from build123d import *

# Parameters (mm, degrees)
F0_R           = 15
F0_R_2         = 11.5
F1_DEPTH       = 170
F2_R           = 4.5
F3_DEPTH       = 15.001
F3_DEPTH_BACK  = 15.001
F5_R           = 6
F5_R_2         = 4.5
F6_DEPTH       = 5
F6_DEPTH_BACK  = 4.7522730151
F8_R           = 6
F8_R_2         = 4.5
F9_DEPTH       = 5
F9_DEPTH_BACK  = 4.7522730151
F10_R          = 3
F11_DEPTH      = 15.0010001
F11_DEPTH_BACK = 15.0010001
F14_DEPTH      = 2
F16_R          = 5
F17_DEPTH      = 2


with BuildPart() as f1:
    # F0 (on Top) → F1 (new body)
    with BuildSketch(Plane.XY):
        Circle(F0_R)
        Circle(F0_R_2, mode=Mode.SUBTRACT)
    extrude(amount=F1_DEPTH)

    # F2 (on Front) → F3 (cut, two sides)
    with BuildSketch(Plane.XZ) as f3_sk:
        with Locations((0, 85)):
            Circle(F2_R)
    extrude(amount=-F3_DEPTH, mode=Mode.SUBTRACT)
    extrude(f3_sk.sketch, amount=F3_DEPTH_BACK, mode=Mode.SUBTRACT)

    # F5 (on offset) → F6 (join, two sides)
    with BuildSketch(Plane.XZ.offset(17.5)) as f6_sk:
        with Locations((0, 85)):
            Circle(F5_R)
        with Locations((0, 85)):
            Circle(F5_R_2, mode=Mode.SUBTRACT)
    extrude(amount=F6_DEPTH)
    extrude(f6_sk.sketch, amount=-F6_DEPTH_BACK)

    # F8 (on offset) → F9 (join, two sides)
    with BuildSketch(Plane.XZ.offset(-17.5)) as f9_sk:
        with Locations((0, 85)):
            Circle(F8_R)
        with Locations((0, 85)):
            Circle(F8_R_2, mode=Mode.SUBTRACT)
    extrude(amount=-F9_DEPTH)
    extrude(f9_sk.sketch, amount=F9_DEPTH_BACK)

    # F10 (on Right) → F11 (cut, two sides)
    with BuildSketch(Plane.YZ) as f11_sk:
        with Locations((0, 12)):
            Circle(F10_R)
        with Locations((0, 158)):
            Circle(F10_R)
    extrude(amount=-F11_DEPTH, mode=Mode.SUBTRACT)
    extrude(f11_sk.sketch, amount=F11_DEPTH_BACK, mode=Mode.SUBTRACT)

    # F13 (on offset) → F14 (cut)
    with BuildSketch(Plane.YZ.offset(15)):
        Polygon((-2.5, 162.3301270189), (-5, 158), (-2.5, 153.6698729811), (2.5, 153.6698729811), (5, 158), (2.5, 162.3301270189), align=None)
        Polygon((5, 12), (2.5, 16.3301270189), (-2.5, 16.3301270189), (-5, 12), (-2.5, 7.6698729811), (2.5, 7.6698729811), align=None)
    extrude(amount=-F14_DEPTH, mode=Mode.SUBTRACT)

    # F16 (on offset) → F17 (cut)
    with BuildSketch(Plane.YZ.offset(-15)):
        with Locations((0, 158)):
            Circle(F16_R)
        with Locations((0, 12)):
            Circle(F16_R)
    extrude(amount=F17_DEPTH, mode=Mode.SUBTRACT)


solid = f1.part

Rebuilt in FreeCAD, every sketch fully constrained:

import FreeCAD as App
import Part
import Sketcher
from FreeCAD import Vector
Q = App.Units.Quantity

doc = App.newDocument("Part")
body = doc.addObject("PartDesign::Body", "Body")

# Sketch on XY plane
sketch1 = body.newObject("Sketcher::SketchObject", "Sketch")
sketch1.AttachmentSupport = (doc.getObject("XY_Plane"), [""])
sketch1.MapMode = "FlatFace"
sketch1.addGeometry(Part.Circle(Vector(0, 0, 0), Vector(0, 0, 1), 15), False)
sketch1.addGeometry(Part.Circle(Vector(0, 0, 0), Vector(0, 0, 1), 11.5), False)
sketch1.addConstraint(Sketcher.Constraint("Coincident", 0, 3, -1, 1))
sketch1.addConstraint(Sketcher.Constraint("Coincident", 1, 3, -1, 1))
sketch1.addConstraint(Sketcher.Constraint("Diameter", 0, 30.0))
sketch1.addConstraint(Sketcher.Constraint("Diameter", 1, 23.0))
pad1 = body.newObject("PartDesign::Pad", "Pad")
pad1.Profile = sketch1
pad1.Length = 170

# Sketch on XZ plane
sketch2 = body.newObject("Sketcher::SketchObject", "Sketch001")
sketch2.AttachmentSupport = (doc.getObject("XZ_Plane"), [""])
sketch2.MapMode = "FlatFace"
sketch2.addGeometry(Part.Circle(Vector(0, 85, 0), Vector(0, 0, 1), 4.5), False)
sketch2.addConstraint(Sketcher.Constraint("PointOnObject", 0, 3, -2))
sketch2.addConstraint(Sketcher.Constraint("Diameter", 0, 9.0))
sketch2.addConstraint(Sketcher.Constraint("DistanceY", -1, 1, 0, 3, 85.0))
pocket1 = body.newObject("PartDesign::Pocket", "Pocket")
pocket1.Profile = sketch2
pocket1.Type = "ThroughAll"
pocket1.Midplane = True

# Sketch on XZ plane
sketch3 = body.newObject("Sketcher::SketchObject", "Sketch002")
sketch3.AttachmentSupport = (doc.getObject("XZ_Plane"), [""])
sketch3.MapMode = "FlatFace"
sketch3.AttachmentOffset = App.Placement(Vector(0, 0, 17.5), App.Rotation())
sketch3.addGeometry(Part.Circle(Vector(0, 85, 0), Vector(0, 0, 1), 6), False)
sketch3.addGeometry(Part.Circle(Vector(0, 85, 0), Vector(0, 0, 1), 4.5), False)
sketch3.addConstraint(Sketcher.Constraint("Coincident", 1, 3, 0, 3))
sketch3.addConstraint(Sketcher.Constraint("PointOnObject", 0, 3, -2))
sketch3.addConstraint(Sketcher.Constraint("Diameter", 0, 12.0))
sketch3.addConstraint(Sketcher.Constraint("Diameter", 1, 9.0))
sketch3.addConstraint(Sketcher.Constraint("DistanceY", -1, 1, 0, 3, 85.0))
pad2 = body.newObject("PartDesign::Pad", "Pad001")
pad2.Profile = sketch3
pad2.Type = "TwoLengths"
pad2.Length = 5
pad2.Length2 = 4.752273

# Sketch on XZ plane
sketch4 = body.newObject("Sketcher::SketchObject", "Sketch003")
sketch4.AttachmentSupport = (doc.getObject("XZ_Plane"), [""])
sketch4.MapMode = "FlatFace"
sketch4.AttachmentOffset = App.Placement(Vector(0, 0, -17.5), App.Rotation())
sketch4.addGeometry(Part.Circle(Vector(0, 85, 0), Vector(0, 0, 1), 6), False)
sketch4.addGeometry(Part.Circle(Vector(0, 85, 0), Vector(0, 0, 1), 4.5), False)
sketch4.addConstraint(Sketcher.Constraint("Coincident", 1, 3, 0, 3))
sketch4.addConstraint(Sketcher.Constraint("PointOnObject", 0, 3, -2))
sketch4.addConstraint(Sketcher.Constraint("Diameter", 0, 12.0))
sketch4.addConstraint(Sketcher.Constraint("Diameter", 1, 9.0))
sketch4.addConstraint(Sketcher.Constraint("DistanceY", -1, 1, 0, 3, 85.0))
pad3 = body.newObject("PartDesign::Pad", "Pad002")
pad3.Profile = sketch4
pad3.Type = "TwoLengths"
pad3.Length = 5
pad3.Length2 = 4.752273
pad3.Reversed = True

# Sketch on YZ plane
sketch5 = body.newObject("Sketcher::SketchObject", "Sketch004")
sketch5.AttachmentSupport = (doc.getObject("YZ_Plane"), [""])
sketch5.MapMode = "FlatFace"
sketch5.addGeometry(Part.Circle(Vector(0, 12, 0), Vector(0, 0, 1), 3), False)
sketch5.addGeometry(Part.Circle(Vector(0, 158, 0), Vector(0, 0, 1), 3), False)
sketch5.addConstraint(Sketcher.Constraint("Equal", 0, 1))
sketch5.addConstraint(Sketcher.Constraint("PointOnObject", 0, 3, -2))
sketch5.addConstraint(Sketcher.Constraint("PointOnObject", 1, 3, -2))
sketch5.addConstraint(Sketcher.Constraint("Diameter", 0, 6.0))
sketch5.addConstraint(Sketcher.Constraint("DistanceY", -1, 1, 0, 3, 12.0))
sketch5.addConstraint(Sketcher.Constraint("DistanceY", -1, 1, 1, 3, 158.0))
pocket2 = body.newObject("PartDesign::Pocket", "Pocket001")
pocket2.Profile = sketch5
pocket2.Type = "ThroughAll"
pocket2.Midplane = True

# Sketch on YZ plane
sketch6 = body.newObject("Sketcher::SketchObject", "Sketch005")
sketch6.AttachmentSupport = (doc.getObject("YZ_Plane"), [""])
sketch6.MapMode = "FlatFace"
sketch6.AttachmentOffset = App.Placement(Vector(0, 0, 15), App.Rotation())
sketch6.addGeometry(Part.LineSegment(Vector(-2.5, 162.330127, 0), Vector(-5, 158, 0)), False)
sketch6.addGeometry(Part.LineSegment(Vector(-5, 158, 0), Vector(-2.5, 153.669873, 0)), False)
sketch6.addGeometry(Part.LineSegment(Vector(-2.5, 153.669873, 0), Vector(2.5, 153.669873, 0)), False)
sketch6.addGeometry(Part.LineSegment(Vector(2.5, 153.669873, 0), Vector(5, 158, 0)), False)
sketch6.addGeometry(Part.LineSegment(Vector(5, 158, 0), Vector(2.5, 162.330127, 0)), False)
sketch6.addGeometry(Part.LineSegment(Vector(2.5, 162.330127, 0), Vector(-2.5, 162.330127, 0)), False)
sketch6.addGeometry(Part.LineSegment(Vector(5, 12, 0), Vector(2.5, 16.330127, 0)), False)
sketch6.addGeometry(Part.LineSegment(Vector(2.5, 16.330127, 0), Vector(-2.5, 16.330127, 0)), False)
sketch6.addGeometry(Part.LineSegment(Vector(-2.5, 16.330127, 0), Vector(-5, 12, 0)), False)
sketch6.addGeometry(Part.LineSegment(Vector(-5, 12, 0), Vector(-2.5, 7.669873, 0)), False)
sketch6.addGeometry(Part.LineSegment(Vector(-2.5, 7.669873, 0), Vector(2.5, 7.669873, 0)), False)
sketch6.addGeometry(Part.LineSegment(Vector(2.5, 7.669873, 0), Vector(5, 12, 0)), False)
sketch6.addConstraint(Sketcher.Constraint("Coincident", 0, 2, 1, 1))
sketch6.addConstraint(Sketcher.Constraint("Coincident", 1, 2, 2, 1))
sketch6.addConstraint(Sketcher.Constraint("Coincident", 2, 2, 3, 1))
sketch6.addConstraint(Sketcher.Constraint("Coincident", 3, 2, 4, 1))
sketch6.addConstraint(Sketcher.Constraint("Coincident", 4, 2, 5, 1))
sketch6.addConstraint(Sketcher.Constraint("Coincident", 5, 2, 0, 1))
sketch6.addConstraint(Sketcher.Constraint("Coincident", 6, 2, 7, 1))
sketch6.addConstraint(Sketcher.Constraint("Coincident", 7, 2, 8, 1))
sketch6.addConstraint(Sketcher.Constraint("Coincident", 8, 2, 9, 1))
sketch6.addConstraint(Sketcher.Constraint("Coincident", 9, 2, 10, 1))
sketch6.addConstraint(Sketcher.Constraint("Coincident", 10, 2, 11, 1))
sketch6.addConstraint(Sketcher.Constraint("Coincident", 11, 2, 6, 1))
sketch6.addConstraint(Sketcher.Constraint("Horizontal", 2))
sketch6.addConstraint(Sketcher.Constraint("Horizontal", 5))
sketch6.addConstraint(Sketcher.Constraint("Horizontal", 7))
sketch6.addConstraint(Sketcher.Constraint("Horizontal", 10))
sketch6.addConstraint(Sketcher.Constraint("Symmetric", 0, 2, 3, 2, -2))
sketch6.addConstraint(Sketcher.Constraint("Symmetric", 8, 2, 11, 2, -2))
sketch6.addConstraint(Sketcher.Constraint("Parallel", 0, 3))
sketch6.addConstraint(Sketcher.Constraint("Parallel", 1, 4))
sketch6.addConstraint(Sketcher.Constraint("Parallel", 4, 6))
sketch6.addConstraint(Sketcher.Constraint("Parallel", 3, 8))
sketch6.addConstraint(Sketcher.Constraint("Parallel", 6, 9))
sketch6.addConstraint(Sketcher.Constraint("Parallel", 8, 11))
sketch6.addConstraint(Sketcher.Constraint("Vertical", 2, 2, 4, 2))
sketch6.addConstraint(Sketcher.Constraint("Vertical", 1, 2, 5, 2))
sketch6.addConstraint(Sketcher.Constraint("Vertical", 4, 2, 6, 2))
sketch6.addConstraint(Sketcher.Constraint("Vertical", 0, 2, 8, 2))
sketch6.addConstraint(Sketcher.Constraint("Vertical", 7, 2, 9, 2))
sketch6.addConstraint(Sketcher.Constraint("DistanceX", 2, 1, 2, 2, 5.0))
sketch6.addConstraint(Sketcher.Constraint("Angle", 0, Q("-120 deg")))
sketch6.addConstraint(Sketcher.Constraint("Distance", 0, 5.0))
sketch6.addConstraint(Sketcher.Constraint("DistanceY", -1, 1, 0, 2, 158.0))
sketch6.addConstraint(Sketcher.Constraint("DistanceY", -1, 1, 8, 2, 12.0))
pocket3 = body.newObject("PartDesign::Pocket", "Pocket002")
pocket3.Profile = sketch6
pocket3.Length = 2

# Sketch on YZ plane
sketch7 = body.newObject("Sketcher::SketchObject", "Sketch006")
sketch7.AttachmentSupport = (doc.getObject("YZ_Plane"), [""])
sketch7.MapMode = "FlatFace"
sketch7.AttachmentOffset = App.Placement(Vector(0, 0, -15), App.Rotation())
sketch7.addGeometry(Part.Circle(Vector(0, 158, 0), Vector(0, 0, 1), 5), False)
sketch7.addGeometry(Part.Circle(Vector(0, 12, 0), Vector(0, 0, 1), 5), False)
sketch7.addConstraint(Sketcher.Constraint("Equal", 0, 1))
sketch7.addConstraint(Sketcher.Constraint("PointOnObject", 0, 3, -2))
sketch7.addConstraint(Sketcher.Constraint("PointOnObject", 1, 3, -2))
sketch7.addConstraint(Sketcher.Constraint("Diameter", 0, 10.0))
sketch7.addConstraint(Sketcher.Constraint("DistanceY", -1, 1, 0, 3, 158.0))
sketch7.addConstraint(Sketcher.Constraint("DistanceY", -1, 1, 1, 3, 12.0))
pocket4 = body.newObject("PartDesign::Pocket", "Pocket003")
pocket4.Profile = sketch7
pocket4.Length = 2
pocket4.Reversed = True

doc.recompute()
